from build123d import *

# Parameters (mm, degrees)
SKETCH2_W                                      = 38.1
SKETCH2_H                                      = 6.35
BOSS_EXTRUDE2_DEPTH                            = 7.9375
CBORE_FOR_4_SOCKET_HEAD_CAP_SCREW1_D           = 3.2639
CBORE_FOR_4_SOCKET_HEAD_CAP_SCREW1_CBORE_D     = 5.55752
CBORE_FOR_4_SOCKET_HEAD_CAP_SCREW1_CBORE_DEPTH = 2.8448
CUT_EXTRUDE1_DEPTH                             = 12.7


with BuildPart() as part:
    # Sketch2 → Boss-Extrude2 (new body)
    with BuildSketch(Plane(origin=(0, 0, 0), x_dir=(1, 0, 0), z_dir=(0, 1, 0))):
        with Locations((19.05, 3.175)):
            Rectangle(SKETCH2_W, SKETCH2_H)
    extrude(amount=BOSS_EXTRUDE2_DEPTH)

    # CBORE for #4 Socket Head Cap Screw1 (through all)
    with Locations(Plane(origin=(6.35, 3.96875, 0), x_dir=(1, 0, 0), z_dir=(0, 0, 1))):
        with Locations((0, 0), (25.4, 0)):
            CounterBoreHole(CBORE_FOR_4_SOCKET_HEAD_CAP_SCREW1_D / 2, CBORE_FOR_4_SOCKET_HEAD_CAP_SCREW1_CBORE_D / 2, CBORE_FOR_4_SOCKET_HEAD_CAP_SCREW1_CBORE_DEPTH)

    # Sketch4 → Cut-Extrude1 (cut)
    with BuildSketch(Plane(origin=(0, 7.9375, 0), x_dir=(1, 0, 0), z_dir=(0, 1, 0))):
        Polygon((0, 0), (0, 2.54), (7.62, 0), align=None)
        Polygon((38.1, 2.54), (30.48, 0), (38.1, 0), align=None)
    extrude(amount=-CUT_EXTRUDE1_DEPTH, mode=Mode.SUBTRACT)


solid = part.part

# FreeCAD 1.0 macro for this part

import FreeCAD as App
import Part
import Sketcher
from FreeCAD import Vector
Q = App.Units.Quantity


def add_polygon(sketch, points):
    """Adds a closed chain of lines whose ends are joined by coincident constraints."""
    first, n = sketch.GeometryCount, len(points)
    for a, b in zip(points, points[1:] + points[:1]):
        sketch.addGeometry(Part.LineSegment(App.Vector(*a, 0), App.Vector(*b, 0)), False)
    for i in range(n):
        sketch.addConstraint(Sketcher.Constraint("Coincident", first + i, 2, first + (i + 1) % n, 1))

doc = App.newDocument("Part")
body = doc.addObject("PartDesign::Body", "Body")

sketch1 = body.newObject("Sketcher::SketchObject", "Sketch")
sketch1.AttachmentSupport = (doc.getObject("XZ_Plane"), [""])
sketch1.MapMode = "FlatFace"
add_polygon(sketch1, [(0, -6), (0, 0), (38, 0), (38, -6)])
sketch1.addConstraint([
    Sketcher.Constraint("Vertical", 0),
    Sketcher.Constraint("Horizontal", 1),
    Sketcher.Constraint("Vertical", 2),
    Sketcher.Constraint("Horizontal", 3),
    Sketcher.Constraint("Coincident", 0, 2, -1, 1),
    Sketcher.Constraint("DistanceX", 1, 1, 1, 2, Q("1.5 in")),
    Sketcher.Constraint("DistanceY", 0, 1, 0, 2, Q("0.25 in")),
])
pad1 = body.newObject("PartDesign::Pad", "Pad")
pad1.Profile = sketch1
pad1.Length = Q("0.3125 in")
pad1.Reversed = True

sketch2 = body.newObject("Sketcher::SketchObject", "Sketch001")
sketch2.AttachmentSupport = (doc.getObject("XY_Plane"), [""])
sketch2.MapMode = "FlatFace"
sketch2.addGeometry([
    Part.Circle(Vector(6.3, 4, 0), Vector(0, 0, 1), 1.6),
    Part.Circle(Vector(31.8, 4, 0), Vector(0, 0, 1), 1.6),
], False)
sketch2.addConstraint([
    Sketcher.Constraint("Equal", 0, 1),
    Sketcher.Constraint("Horizontal", 0, 3, 1, 3),
    Sketcher.Constraint("DistanceX", 0, 3, 1, 3, Q("1 in")),
    Sketcher.Constraint("Diameter", 0, Q("0.1285 in")),
    Sketcher.Constraint("DistanceX", -1, 1, 0, 3, Q("0.25 in")),
    Sketcher.Constraint("DistanceY", -1, 1, 0, 3, Q("0.15625 in")),
])
doc.recompute()
hole = body.newObject("PartDesign::Hole", "Hole")
hole.Profile = sketch2
hole.ThreadType = "None"
hole.Diameter = Q("0.1285 in")
hole.DepthType = "ThroughAll"
hole.HoleCutType = "Counterbore"
hole.HoleCutDiameter = Q("0.2188 in")
hole.HoleCutDepth = Q("0.112 in")

sketch3 = body.newObject("Sketcher::SketchObject", "Sketch002")
sketch3.AttachmentSupport = (doc.getObject("XZ_Plane"), [""])
sketch3.MapMode = "FlatFace"
sketch3.AttachmentOffset = App.Placement(Vector(0, 0, -0.3125 * 25.4), App.Rotation())
add_polygon(sketch3, [(0, -2.5), (0, 0), (7.6, 0)])
add_polygon(sketch3, [(38.1, -2.5), (30.5, 0), (38.1, 0)])
sketch3.addConstraint([
    Sketcher.Constraint("Vertical", 0),
    Sketcher.Constraint("Horizontal", 1),
    Sketcher.Constraint("Horizontal", 4),
    Sketcher.Constraint("Vertical", 5),
    Sketcher.Constraint("Coincident", 0, 2, -1, 1),
    Sketcher.Constraint("PointOnObject", 3, 2, -1),
    Sketcher.Constraint("Horizontal", 2, 2, 5, 2),
    Sketcher.Constraint("Equal", 1, 4),
    Sketcher.Constraint("DistanceX", 1, 1, 1, 2, Q("0.3 in")),
    Sketcher.Constraint("DistanceY", 0, 1, 0, 2, Q("0.1 in")),
    Sketcher.Constraint("DistanceX", -1, 1, 3, 2, Q("1.2 in")),
])
pocket1 = body.newObject("PartDesign::Pocket", "Pocket")
pocket1.Profile = sketch3
pocket1.Length = Q("0.5 in")
pocket1.Reversed = True

doc.recompute()
